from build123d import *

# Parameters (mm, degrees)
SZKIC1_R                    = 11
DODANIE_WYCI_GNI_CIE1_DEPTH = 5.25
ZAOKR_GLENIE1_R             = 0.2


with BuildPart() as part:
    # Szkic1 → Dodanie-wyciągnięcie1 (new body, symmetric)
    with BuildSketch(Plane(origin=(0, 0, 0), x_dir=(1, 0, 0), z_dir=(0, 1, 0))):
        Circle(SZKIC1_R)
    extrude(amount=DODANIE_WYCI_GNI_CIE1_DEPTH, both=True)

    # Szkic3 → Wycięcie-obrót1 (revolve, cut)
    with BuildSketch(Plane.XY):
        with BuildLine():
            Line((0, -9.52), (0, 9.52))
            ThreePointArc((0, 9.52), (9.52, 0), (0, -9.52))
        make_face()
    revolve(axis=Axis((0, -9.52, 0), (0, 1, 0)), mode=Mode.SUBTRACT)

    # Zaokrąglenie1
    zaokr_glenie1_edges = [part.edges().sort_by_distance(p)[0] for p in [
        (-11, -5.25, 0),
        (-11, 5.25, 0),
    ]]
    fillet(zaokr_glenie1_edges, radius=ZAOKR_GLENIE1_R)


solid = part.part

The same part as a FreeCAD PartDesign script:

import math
import FreeCAD as App
import Part
import Sketcher
from FreeCAD import Vector


def edges_at(feature, points):
    """Names of the edges that pass closest to the given points."""
    edges = feature.Shape.Edges
    near = lambda p: min(range(len(edges)), key=lambda i: edges[i].distToShape(Part.Vertex(*p))[0])
    return sorted({f"Edge{near(p) + 1}" for p in points})

doc = App.newDocument("Part")
body = doc.addObject("PartDesign::Body", "Body")

sketch1 = body.newObject("Sketcher::SketchObject", "Sketch")
sketch1.AttachmentSupport = (doc.getObject("XZ_Plane"), [""])
sketch1.MapMode = "FlatFace"
sketch1.addGeometry(Part.Circle(Vector(0, 0, 0), Vector(0, 0, 1), 11), False)
sketch1.addConstraint([
    Sketcher.Constraint("Coincident", 0, 3, -1, 1),
    Sketcher.Constraint("Diameter", 0, 22.0),
])
pad1 = body.newObject("PartDesign::Pad", "Pad")
pad1.Profile = sketch1
pad1.Length = 10.5
pad1.Midplane = True

sketch2 = body.newObject("Sketcher::SketchObject", "Sketch001")
sketch2.AttachmentSupport = (doc.getObject("XY_Plane"), [""])
sketch2.MapMode = "FlatFace"
sketch2.addGeometry([
    Part.LineSegment(Vector(0, 10, 0), Vector(0, -10, 0)),
    Part.ArcOfCircle(Part.Circle(Vector(0, 0, 0), Vector(0, 0, 1), 10), math.radians(-90), math.radians(90)),
], False)
sketch2.addConstraint([
    Sketcher.Constraint("Coincident", 0, 1, 1, 2),
    Sketcher.Constraint("Coincident", 1, 1, 0, 2),
    Sketcher.Constraint("Vertical", 0),
    Sketcher.Constraint("Coincident", 1, 3, -1, 1),
    Sketcher.Constraint("PointOnObject", 0, 1, -2),
    Sketcher.Constraint("Radius", 1, 9.52),
])
groove = body.newObject("PartDesign::Groove", "Groove")
groove.Profile = sketch2
groove.ReferenceAxis = (sketch2, ["V_Axis"])
groove.Angle = 360
doc.recompute()

fillet = body.newObject("PartDesign::Fillet", "Fillet")
fillet.Base = (groove, edges_at(groove, [(-11, -5.25, 0), (-11, 5.25, 0)]))
fillet.Radius = 0.2

doc.recompute()
